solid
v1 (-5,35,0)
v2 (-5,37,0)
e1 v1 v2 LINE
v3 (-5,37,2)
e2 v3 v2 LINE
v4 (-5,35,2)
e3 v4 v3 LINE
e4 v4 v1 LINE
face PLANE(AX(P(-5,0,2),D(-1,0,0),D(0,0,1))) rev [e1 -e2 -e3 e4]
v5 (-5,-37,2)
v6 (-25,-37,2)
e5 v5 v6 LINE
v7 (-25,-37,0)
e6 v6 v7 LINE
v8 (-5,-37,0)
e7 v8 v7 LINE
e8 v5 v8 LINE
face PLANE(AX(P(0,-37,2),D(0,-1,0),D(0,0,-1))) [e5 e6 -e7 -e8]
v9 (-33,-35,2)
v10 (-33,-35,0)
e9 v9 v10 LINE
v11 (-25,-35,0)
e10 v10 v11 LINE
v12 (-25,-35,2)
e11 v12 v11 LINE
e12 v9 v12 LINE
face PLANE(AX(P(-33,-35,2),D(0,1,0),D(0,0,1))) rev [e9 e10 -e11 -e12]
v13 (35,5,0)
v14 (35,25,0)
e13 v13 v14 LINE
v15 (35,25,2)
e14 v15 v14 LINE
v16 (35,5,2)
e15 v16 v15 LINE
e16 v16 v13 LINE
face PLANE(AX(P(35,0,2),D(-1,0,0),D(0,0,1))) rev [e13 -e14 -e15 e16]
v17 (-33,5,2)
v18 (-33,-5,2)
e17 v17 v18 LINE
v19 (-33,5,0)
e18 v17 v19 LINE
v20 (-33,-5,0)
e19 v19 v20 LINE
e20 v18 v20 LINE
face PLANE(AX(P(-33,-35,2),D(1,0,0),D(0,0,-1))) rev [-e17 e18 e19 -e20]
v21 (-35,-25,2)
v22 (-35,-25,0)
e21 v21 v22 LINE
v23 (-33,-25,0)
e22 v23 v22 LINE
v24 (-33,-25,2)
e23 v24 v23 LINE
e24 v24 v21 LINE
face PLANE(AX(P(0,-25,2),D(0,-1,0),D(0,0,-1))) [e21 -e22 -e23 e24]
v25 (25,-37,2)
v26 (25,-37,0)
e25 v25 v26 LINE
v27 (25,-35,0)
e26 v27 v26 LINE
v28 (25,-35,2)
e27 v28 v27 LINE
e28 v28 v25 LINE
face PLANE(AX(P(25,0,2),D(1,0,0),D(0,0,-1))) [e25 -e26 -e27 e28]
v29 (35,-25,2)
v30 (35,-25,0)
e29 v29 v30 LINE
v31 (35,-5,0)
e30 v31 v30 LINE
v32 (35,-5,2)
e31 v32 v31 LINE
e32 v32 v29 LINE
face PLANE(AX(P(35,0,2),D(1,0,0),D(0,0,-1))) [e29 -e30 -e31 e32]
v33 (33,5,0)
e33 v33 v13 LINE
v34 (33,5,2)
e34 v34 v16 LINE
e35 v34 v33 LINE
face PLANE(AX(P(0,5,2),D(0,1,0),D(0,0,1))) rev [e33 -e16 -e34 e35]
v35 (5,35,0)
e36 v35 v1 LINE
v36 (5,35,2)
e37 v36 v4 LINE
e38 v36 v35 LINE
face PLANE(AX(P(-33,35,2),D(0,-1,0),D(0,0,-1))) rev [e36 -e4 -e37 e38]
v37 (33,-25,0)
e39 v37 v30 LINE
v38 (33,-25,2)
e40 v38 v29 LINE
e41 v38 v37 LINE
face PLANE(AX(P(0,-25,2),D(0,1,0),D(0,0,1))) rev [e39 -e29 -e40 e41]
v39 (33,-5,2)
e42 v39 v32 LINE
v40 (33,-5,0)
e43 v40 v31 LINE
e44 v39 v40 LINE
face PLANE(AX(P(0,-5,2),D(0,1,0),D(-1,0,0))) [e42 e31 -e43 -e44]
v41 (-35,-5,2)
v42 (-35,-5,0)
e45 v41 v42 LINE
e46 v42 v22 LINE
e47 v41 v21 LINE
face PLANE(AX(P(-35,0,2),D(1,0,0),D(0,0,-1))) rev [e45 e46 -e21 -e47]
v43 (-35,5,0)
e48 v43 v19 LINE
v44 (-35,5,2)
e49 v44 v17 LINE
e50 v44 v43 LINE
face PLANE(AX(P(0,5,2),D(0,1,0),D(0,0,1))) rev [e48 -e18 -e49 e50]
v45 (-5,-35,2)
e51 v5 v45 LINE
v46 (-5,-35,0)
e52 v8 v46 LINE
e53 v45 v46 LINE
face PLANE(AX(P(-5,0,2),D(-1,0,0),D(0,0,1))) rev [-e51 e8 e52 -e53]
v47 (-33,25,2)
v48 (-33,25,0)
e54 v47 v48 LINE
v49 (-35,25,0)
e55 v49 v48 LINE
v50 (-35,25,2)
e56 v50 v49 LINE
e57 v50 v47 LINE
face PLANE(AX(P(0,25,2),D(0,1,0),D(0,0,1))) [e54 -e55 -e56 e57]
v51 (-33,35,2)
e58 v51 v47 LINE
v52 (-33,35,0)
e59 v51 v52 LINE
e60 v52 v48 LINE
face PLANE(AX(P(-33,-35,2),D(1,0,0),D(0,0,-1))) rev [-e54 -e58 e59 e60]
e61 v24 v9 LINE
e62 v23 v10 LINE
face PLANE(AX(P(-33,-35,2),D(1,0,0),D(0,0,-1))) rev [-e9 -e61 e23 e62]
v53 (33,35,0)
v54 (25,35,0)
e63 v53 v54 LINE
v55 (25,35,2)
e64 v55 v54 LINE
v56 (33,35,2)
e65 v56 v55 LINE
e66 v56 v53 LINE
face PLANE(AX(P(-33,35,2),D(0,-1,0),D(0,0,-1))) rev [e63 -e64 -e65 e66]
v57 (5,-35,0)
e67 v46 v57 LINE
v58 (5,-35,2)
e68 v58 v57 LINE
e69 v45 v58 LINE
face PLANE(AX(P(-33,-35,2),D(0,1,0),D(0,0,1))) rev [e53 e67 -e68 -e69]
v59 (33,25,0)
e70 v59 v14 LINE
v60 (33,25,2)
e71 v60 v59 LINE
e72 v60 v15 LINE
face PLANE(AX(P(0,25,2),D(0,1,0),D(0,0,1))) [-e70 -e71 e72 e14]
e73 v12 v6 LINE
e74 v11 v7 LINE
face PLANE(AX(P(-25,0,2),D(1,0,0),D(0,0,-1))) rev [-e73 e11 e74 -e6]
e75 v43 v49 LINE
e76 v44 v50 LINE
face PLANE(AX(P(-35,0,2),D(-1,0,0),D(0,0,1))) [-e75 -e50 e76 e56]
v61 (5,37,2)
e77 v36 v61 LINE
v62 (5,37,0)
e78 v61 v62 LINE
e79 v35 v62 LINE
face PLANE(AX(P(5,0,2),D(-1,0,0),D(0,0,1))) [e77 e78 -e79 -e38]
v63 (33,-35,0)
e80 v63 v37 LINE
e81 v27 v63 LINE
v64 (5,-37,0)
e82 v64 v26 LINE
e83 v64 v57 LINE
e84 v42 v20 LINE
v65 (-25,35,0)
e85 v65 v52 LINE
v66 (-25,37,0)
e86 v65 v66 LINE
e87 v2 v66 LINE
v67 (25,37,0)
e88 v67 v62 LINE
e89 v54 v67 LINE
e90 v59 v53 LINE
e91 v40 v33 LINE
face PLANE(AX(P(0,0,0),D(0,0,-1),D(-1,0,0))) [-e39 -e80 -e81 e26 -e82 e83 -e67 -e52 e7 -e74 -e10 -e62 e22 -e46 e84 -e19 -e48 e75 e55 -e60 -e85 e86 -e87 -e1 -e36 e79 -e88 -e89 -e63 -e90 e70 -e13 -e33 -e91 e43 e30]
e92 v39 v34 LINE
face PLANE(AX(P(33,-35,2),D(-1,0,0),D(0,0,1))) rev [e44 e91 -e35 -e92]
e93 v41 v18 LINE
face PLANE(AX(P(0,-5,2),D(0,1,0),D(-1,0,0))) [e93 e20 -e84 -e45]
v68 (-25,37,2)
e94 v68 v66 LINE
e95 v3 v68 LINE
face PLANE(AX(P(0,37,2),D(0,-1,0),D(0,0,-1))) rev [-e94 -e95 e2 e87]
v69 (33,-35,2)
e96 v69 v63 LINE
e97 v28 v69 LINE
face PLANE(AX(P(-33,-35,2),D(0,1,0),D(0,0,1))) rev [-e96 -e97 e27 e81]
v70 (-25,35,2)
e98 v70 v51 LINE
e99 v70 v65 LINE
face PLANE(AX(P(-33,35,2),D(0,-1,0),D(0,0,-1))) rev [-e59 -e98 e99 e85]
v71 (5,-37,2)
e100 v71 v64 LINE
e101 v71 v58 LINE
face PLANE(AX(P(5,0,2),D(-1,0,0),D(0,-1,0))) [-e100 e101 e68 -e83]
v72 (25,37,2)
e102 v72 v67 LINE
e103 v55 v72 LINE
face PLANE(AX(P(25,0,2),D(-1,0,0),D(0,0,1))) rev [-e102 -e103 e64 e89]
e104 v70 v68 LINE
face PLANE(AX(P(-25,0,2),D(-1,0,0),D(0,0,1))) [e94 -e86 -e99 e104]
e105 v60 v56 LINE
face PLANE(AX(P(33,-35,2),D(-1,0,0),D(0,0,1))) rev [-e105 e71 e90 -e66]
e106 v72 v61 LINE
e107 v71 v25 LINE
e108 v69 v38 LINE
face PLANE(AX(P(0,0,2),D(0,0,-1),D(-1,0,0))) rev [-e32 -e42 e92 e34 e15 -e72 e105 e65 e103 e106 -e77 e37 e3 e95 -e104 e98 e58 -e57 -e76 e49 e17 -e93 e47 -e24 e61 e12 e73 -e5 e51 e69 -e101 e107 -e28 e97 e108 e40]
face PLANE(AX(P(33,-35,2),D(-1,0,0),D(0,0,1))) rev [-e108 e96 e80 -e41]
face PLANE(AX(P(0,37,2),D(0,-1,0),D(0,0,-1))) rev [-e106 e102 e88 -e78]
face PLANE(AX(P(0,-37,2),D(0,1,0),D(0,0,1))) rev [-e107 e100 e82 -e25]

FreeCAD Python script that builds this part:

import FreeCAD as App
import Part
import Sketcher

V = App.Vector
Q = App.Units.Quantity


def add_polygon(sketch, points):
    """Adds a closed chain of lines whose ends are joined by coincident constraints."""
    first, n = sketch.GeometryCount, len(points)
    for a, b in zip(points, points[1:] + points[:1]):
        sketch.addGeometry(Part.LineSegment(App.Vector(*a, 0), App.Vector(*b, 0)), False)
    for i in range(n):
        sketch.addConstraint(Sketcher.Constraint("Coincident", first + i, 2, first + (i + 1) % n, 1))

doc = App.newDocument("Part")
body = doc.addObject("PartDesign::Body", "Body")

sketch1 = body.newObject("Sketcher::SketchObject", "Sketch")
sketch1.AttachmentSupport = (doc.getObject("XY_Plane"), [""])
sketch1.MapMode = "FlatFace"
add_polygon(sketch1, [(-33, 35), (-33, -35), (33, -35), (33, 35)])
sketch1.addConstraint([
    Sketcher.Constraint("Vertical", 0),
    Sketcher.Constraint("Horizontal", 1),
    Sketcher.Constraint("Vertical", 2),
    Sketcher.Constraint("Horizontal", 3),
    Sketcher.Constraint("Symmetric", 0, 2, 2, 2, -1, 1),
    Sketcher.Constraint("DistanceX", 1, 1, 1, 2, Q("66 mm")),
    Sketcher.Constraint("DistanceY", 0, 2, 0, 1, Q("70 mm")),
])
pad1 = body.newObject("PartDesign::Pad", "Pad")
pad1.Profile = sketch1
pad1.Length = 2

sketch2 = body.newObject("Sketcher::SketchObject", "Sketch001")
sketch2.AttachmentSupport = (doc.getObject("XY_Plane"), [""])
sketch2.MapMode = "FlatFace"
add_polygon(sketch2, [(-33, -5), (-33, -25), (-35, -25), (-35, -5)])
add_polygon(sketch2, [(-33, 25), (-33, 5), (-35, 5), (-35, 25)])
add_polygon(sketch2, [(35, -5), (35, -25), (33, -25), (33, -5)])
add_polygon(sketch2, [(35, 25), (35, 5), (33, 5), (33, 25)])
sketch2.addConstraint([
    Sketcher.Constraint("Vertical", 0),
    Sketcher.Constraint("Horizontal", 1),
    Sketcher.Constraint("Vertical", 2),
    Sketcher.Constraint("Horizontal", 3),
    Sketcher.Constraint("Vertical", 4),
    Sketcher.Constraint("Horizontal", 5),
    Sketcher.Constraint("Vertical", 6),
    Sketcher.Constraint("Horizontal", 7),
    Sketcher.Constraint("Vertical", 8),
    Sketcher.Constraint("Horizontal", 9),
    Sketcher.Constraint("Vertical", 10),
    Sketcher.Constraint("Horizontal", 11),
    Sketcher.Constraint("Vertical", 12),
    Sketcher.Constraint("Horizontal", 13),
    Sketcher.Constraint("Vertical", 14),
    Sketcher.Constraint("Horizontal", 15),
    Sketcher.Constraint("Symmetric", 6, 2, 8, 2, -1, 1),
    Sketcher.Constraint("Symmetric", 4, 2, 10, 2, -1, 1),
    Sketcher.Constraint("Symmetric", 2, 2, 12, 2, -1, 1),
    Sketcher.Constraint("Symmetric", 0, 2, 14, 2, -1, 1),
    Sketcher.Constraint("Symmetric", 1, 2, 8, 2, -2),
    Sketcher.Constraint("Symmetric", 3, 2, 10, 2, -2),
    Sketcher.Constraint("DistanceX", 1, 2, 1, 1, Q("2 mm")),
    Sketcher.Constraint("DistanceY", 0, 2, 0, 1, Q("20 mm")),
    Sketcher.Constraint("DistanceX", 0, 2, -1, 1, Q("33 mm")),
    Sketcher.Constraint("DistanceY", 0, 2, -1, 1, Q("25 mm")),
])
pad2 = body.newObject("PartDesign::Pad", "Pad001")
pad2.Profile = sketch2
pad2.Length = 2

sketch3 = body.newObject("Sketcher::SketchObject", "Sketch002")
sketch3.AttachmentSupport = (doc.getObject("XY_Plane"), [""])
sketch3.MapMode = "FlatFace"
add_polygon(sketch3, [(25, 37), (25, 35), (5, 35), (5, 37)])
add_polygon(sketch3, [(-5, 37), (-5, 35), (-25, 35), (-25, 37)])
add_polygon(sketch3, [(25, -35), (25, -37), (5, -37), (5, -35)])
add_polygon(sketch3, [(-5, -35), (-5, -37), (-25, -37), (-25, -35)])
sketch3.addConstraint([
    Sketcher.Constraint("Vertical", 0),
    Sketcher.Constraint("Horizontal", 1),
    Sketcher.Constraint("Vertical", 2),
    Sketcher.Constraint("Horizontal", 3),
    Sketcher.Constraint("Vertical", 4),
    Sketcher.Constraint("Horizontal", 5),
    Sketcher.Constraint("Vertical", 6),
    Sketcher.Constraint("Horizontal", 7),
    Sketcher.Constraint("Vertical", 8),
    Sketcher.Constraint("Horizontal", 9),
    Sketcher.Constraint("Vertical", 10),
    Sketcher.Constraint("Horizontal", 11),
    Sketcher.Constraint("Vertical", 12),
    Sketcher.Constraint("Horizontal", 13),
    Sketcher.Constraint("Vertical", 14),
    Sketcher.Constraint("Horizontal", 15),
    Sketcher.Constraint("Symmetric", 6, 2, 8, 2, -1, 1),
    Sketcher.Constraint("Symmetric", 4, 2, 10, 2, -1, 1),
    Sketcher.Constraint("Symmetric", 2, 2, 12, 2, -1, 1),
    Sketcher.Constraint("Symmetric", 0, 2, 14, 2, -1, 1),
    Sketcher.Constraint("Symmetric", 1, 2, 4, 2, -2),
    Sketcher.Constraint("Symmetric", 3, 2, 6, 2, -2),
    Sketcher.Constraint("DistanceX", 1, 2, 1, 1, Q("20 mm")),
    Sketcher.Constraint("DistanceY", 0, 2, 0, 1, Q("2 mm")),
    Sketcher.Constraint("DistanceX", -1, 1, 0, 2, Q("25 mm")),
    Sketcher.Constraint("DistanceY", -1, 1, 0, 2, Q("35 mm")),
])
pad3 = body.newObject("PartDesign::Pad", "Pad002")
pad3.Profile = sketch3
pad3.Length = 2

doc.recompute()
